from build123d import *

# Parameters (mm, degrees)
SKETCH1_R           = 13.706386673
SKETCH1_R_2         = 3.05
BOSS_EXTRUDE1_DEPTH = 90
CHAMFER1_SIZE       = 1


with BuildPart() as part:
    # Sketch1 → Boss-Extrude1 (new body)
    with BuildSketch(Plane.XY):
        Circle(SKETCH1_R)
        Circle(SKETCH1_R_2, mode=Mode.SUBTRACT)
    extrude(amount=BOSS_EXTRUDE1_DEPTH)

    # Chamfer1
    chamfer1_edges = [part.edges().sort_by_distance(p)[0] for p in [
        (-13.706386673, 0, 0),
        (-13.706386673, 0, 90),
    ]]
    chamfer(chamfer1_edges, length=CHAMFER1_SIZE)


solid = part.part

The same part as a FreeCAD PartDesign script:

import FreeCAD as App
import Part
import Sketcher

V = App.Vector
Q = App.Units.Quantity


def edges_at(feature, points):
    """Names of the edges that pass closest to the given points."""
    edges = feature.Shape.Edges
    near = lambda p: min(range(len(edges)), key=lambda i: edges[i].distToShape(Part.Vertex(*p))[0])
    return sorted({f"Edge{near(p) + 1}" for p in points})

doc = App.newDocument("Part")
body = doc.addObject("PartDesign::Body", "Body")

# Sketch on XY plane
sketch1 = body.newObject("Sketcher::SketchObject", "Sketch")
sketch1.AttachmentSupport = (doc.getObject("XY_Plane"), [""])
sketch1.MapMode = "FlatFace"
sketch1.addGeometry(Part.Circle(V(0, 0, 0), V(0, 0, 1), 13.7), False)
sketch1.addGeometry(Part.Circle(V(0, 0, 0), V(0, 0, 1), 3), False)
sketch1.addConstraint(Sketcher.Constraint("Coincident", 0, 3, -1, 1))
sketch1.addConstraint(Sketcher.Constraint("Coincident", 1, 3, -1, 1))
sketch1.addConstraint(Sketcher.Constraint("Diameter", 1, Q("6.1 mm")))
sketch1.addConstraint(Sketcher.Constraint("Diameter", 0, Q("27.412773 mm")))
pad1 = body.newObject("PartDesign::Pad", "Pad")
pad1.Profile = sketch1
pad1.Length = 90
doc.recompute()

chamfer = body.newObject("PartDesign::Chamfer", "Chamfer")
chamfer.Base = (pad1, edges_at(pad1, [(-13.706, 0, 0), (-13.706, 0, 90)]))
chamfer.Size = 1

doc.recompute()
